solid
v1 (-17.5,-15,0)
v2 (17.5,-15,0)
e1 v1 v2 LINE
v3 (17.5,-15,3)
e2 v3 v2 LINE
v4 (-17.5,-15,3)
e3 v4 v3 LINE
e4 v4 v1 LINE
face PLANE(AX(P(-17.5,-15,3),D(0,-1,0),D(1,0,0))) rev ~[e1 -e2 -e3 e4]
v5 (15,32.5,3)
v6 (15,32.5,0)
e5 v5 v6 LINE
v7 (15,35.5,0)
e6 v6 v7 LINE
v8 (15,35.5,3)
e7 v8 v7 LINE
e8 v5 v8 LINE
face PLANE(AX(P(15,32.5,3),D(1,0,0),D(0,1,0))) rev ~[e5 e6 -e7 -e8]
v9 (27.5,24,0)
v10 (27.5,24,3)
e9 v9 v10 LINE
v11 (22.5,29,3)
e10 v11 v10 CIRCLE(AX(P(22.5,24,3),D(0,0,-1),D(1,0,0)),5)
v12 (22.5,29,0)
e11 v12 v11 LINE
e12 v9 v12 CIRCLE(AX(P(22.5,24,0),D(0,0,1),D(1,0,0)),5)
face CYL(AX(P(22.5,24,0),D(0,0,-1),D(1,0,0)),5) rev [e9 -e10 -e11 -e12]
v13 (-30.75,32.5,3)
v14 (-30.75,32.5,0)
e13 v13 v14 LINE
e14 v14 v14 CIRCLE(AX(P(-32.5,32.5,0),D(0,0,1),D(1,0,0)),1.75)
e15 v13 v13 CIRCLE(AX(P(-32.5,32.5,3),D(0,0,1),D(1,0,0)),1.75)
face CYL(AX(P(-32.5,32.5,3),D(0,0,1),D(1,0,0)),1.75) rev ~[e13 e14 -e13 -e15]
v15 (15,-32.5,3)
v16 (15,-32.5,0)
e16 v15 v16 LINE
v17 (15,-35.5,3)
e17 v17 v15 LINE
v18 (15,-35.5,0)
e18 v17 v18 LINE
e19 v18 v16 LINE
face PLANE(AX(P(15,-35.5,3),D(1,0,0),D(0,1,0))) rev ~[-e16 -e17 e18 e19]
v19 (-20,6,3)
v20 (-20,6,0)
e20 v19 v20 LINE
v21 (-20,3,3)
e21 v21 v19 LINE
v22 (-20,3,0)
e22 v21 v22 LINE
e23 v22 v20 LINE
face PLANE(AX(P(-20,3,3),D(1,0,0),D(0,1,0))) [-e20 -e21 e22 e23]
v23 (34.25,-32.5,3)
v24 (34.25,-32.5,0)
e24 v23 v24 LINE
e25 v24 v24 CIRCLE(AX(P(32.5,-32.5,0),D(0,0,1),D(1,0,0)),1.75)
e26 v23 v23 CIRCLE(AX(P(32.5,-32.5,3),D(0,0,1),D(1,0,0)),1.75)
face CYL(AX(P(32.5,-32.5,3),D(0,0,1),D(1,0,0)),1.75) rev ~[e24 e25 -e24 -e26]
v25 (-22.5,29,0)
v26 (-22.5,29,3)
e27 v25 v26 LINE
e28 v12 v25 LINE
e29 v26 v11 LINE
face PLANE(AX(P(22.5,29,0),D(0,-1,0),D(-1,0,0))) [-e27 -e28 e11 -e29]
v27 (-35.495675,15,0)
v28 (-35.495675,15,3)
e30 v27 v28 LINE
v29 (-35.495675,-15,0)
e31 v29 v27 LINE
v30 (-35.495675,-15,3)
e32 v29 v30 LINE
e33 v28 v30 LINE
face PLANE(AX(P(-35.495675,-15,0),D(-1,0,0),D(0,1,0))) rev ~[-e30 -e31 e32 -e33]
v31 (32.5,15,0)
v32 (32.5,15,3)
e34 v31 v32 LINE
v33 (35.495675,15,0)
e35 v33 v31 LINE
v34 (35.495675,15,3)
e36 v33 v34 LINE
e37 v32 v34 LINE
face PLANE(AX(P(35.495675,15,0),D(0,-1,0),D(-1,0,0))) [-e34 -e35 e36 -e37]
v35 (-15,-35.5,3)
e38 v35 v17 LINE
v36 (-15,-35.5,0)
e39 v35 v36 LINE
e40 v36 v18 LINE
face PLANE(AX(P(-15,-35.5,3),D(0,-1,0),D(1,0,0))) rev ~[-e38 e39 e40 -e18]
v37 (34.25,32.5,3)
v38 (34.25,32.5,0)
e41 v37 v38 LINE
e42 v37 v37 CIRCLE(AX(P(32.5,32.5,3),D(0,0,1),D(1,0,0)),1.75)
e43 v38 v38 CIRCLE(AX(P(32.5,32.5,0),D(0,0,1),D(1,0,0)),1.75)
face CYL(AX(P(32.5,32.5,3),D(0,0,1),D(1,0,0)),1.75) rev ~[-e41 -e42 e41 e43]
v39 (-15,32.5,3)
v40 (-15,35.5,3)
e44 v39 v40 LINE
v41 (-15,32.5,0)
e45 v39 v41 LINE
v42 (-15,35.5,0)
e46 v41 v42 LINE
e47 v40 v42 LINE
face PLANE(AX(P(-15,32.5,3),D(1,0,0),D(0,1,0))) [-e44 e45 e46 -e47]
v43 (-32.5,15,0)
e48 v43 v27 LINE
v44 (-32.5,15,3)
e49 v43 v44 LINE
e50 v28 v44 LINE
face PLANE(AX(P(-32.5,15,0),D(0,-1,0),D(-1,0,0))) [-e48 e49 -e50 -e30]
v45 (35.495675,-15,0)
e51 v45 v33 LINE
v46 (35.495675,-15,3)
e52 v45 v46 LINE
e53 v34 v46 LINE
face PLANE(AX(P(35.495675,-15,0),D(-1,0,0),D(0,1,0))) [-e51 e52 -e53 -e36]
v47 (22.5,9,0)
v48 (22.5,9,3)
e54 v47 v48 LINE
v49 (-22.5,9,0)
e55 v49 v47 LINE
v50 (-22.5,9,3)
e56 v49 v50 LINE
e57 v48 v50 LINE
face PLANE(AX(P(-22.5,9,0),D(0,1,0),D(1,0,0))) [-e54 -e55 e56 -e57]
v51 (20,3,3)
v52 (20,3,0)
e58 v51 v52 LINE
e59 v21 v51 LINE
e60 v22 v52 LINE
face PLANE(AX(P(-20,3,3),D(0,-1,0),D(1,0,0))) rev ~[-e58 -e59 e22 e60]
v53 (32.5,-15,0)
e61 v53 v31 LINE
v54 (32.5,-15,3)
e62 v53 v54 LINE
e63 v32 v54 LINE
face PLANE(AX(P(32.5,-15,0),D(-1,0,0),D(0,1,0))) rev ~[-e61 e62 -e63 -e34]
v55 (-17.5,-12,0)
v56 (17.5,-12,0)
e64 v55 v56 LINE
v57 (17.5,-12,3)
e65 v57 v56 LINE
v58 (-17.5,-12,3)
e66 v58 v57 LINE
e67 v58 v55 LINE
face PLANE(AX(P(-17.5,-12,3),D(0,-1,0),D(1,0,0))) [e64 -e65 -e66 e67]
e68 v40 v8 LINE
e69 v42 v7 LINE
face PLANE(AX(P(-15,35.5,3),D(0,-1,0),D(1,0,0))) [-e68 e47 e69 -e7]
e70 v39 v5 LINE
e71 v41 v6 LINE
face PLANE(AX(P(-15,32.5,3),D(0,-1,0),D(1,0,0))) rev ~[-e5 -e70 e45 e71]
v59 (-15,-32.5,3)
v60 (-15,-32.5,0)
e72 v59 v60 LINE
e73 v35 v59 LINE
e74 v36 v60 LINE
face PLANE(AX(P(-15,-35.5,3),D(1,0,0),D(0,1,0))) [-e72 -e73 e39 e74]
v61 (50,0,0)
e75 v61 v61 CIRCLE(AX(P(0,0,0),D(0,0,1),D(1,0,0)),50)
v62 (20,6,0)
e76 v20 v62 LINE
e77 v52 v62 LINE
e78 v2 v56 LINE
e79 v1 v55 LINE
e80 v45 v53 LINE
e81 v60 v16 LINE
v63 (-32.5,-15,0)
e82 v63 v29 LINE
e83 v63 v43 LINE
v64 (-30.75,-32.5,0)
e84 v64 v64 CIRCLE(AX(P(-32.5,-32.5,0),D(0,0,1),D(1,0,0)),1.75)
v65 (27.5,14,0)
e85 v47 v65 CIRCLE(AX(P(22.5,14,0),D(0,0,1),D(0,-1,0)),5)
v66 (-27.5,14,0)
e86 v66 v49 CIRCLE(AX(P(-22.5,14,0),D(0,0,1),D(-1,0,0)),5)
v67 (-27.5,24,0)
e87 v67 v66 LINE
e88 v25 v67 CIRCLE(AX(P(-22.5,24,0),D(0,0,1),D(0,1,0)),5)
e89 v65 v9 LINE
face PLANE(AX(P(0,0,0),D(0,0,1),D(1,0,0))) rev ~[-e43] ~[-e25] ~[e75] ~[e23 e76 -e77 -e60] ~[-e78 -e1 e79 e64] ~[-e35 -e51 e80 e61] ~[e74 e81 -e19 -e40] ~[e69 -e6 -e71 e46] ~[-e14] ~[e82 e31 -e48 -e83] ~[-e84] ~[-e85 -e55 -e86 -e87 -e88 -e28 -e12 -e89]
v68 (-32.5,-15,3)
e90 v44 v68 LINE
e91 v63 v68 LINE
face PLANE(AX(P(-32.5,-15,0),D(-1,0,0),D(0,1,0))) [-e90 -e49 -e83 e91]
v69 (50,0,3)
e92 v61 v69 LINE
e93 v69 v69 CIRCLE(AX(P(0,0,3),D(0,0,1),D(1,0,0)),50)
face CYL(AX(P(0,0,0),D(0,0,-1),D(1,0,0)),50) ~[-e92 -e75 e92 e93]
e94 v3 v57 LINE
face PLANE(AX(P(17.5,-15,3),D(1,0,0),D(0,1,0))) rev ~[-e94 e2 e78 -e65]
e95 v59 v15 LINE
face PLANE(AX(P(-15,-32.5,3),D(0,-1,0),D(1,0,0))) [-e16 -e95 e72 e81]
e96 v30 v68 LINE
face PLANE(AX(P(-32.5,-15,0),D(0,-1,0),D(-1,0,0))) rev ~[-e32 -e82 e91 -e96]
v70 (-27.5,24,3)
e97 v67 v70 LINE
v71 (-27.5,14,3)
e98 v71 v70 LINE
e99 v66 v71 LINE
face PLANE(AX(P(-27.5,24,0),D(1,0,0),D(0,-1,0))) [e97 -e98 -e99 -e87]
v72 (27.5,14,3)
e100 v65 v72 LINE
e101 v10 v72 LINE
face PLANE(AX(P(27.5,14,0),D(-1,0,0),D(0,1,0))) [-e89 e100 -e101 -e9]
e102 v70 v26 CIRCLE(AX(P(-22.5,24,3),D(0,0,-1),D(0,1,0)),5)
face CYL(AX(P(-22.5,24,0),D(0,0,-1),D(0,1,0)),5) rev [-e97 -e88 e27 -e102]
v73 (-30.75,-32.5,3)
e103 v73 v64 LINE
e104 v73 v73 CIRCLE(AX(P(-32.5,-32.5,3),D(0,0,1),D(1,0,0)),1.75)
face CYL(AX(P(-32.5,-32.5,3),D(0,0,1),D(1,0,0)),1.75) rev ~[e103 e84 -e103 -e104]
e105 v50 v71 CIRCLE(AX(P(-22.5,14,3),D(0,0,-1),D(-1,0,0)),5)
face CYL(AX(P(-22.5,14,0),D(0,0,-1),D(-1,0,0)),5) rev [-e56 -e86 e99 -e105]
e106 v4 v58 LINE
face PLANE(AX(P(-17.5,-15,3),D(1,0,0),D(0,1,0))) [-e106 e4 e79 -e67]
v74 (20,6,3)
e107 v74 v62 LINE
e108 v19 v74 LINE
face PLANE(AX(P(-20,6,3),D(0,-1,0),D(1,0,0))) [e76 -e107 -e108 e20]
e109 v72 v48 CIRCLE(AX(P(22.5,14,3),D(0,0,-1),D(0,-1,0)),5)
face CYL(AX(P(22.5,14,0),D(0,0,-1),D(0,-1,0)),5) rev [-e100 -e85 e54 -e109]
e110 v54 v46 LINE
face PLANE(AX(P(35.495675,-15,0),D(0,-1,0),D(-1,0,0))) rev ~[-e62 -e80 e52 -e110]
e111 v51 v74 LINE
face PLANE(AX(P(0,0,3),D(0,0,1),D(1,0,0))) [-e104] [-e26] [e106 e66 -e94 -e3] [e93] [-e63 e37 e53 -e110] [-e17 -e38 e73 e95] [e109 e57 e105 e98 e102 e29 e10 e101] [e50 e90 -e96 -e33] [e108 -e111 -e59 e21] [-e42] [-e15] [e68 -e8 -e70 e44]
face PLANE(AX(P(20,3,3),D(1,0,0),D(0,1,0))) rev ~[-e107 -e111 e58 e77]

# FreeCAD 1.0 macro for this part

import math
import FreeCAD as App
import Part
import Sketcher

V = App.Vector

doc = App.newDocument("Part")
body = doc.addObject("PartDesign::Body", "Body")

sketch1 = body.newObject("Sketcher::SketchObject", "Sketch")
sketch1.AttachmentSupport = (doc.getObject("XY_Plane"), [""])
sketch1.MapMode = "FlatFace"
sketch1.addGeometry(Part.Circle(V(0, 0, 0), V(0, 0, 1), 50), False)
sketch1.addConstraint([
    Sketcher.Constraint("Coincident", 0, 3, -1, 1),
    Sketcher.Constraint("Diameter", 0, 100.0),
])
pad1 = body.newObject("PartDesign::Pad", "Pad")
pad1.Profile = sketch1
pad1.Length = 3

sketch2 = body.newObject("Sketcher::SketchObject", "Sketch001")
sketch2.AttachmentSupport = (doc.getObject("XY_Plane"), [""])
sketch2.MapMode = "FlatFace"
sketch2.AttachmentOffset = App.Placement(V(0, 0, 3), App.Rotation())
sketch2.addGeometry([
    Part.LineSegment(V(-15, -32.5, 0), V(-15, -35.5, 0)),
    Part.LineSegment(V(-15, -35.5, 0), V(15, -35.5, 0)),
    Part.LineSegment(V(15, -35.5, 0), V(15, -32.5, 0)),
    Part.LineSegment(V(15, -32.5, 0), V(-15, -32.5, 0)),
    Part.LineSegment(V(-17.5, -12, 0), V(-17.5, -15, 0)),
    Part.LineSegment(V(-17.5, -15, 0), V(17.5, -15, 0)),
    Part.LineSegment(V(17.5, -15, 0), V(17.5, -12, 0)),
    Part.LineSegment(V(17.5, -12, 0), V(-17.5, -12, 0)),
    Part.LineSegment(V(-20, 6, 0), V(-20, 3, 0)),
    Part.LineSegment(V(-20, 3, 0), V(20, 3, 0)),
    Part.LineSegment(V(20, 3, 0), V(20, 6, 0)),
    Part.LineSegment(V(20, 6, 0), V(-20, 6, 0)),
    Part.LineSegment(V(-15, 35.5, 0), V(-15, 32.5, 0)),
    Part.LineSegment(V(-15, 32.5, 0), V(15, 32.5, 0)),
    Part.LineSegment(V(15, 32.5, 0), V(15, 35.5, 0)),
    Part.LineSegment(V(15, 35.5, 0), V(-15, 35.5, 0)),
], False)
sketch2.addConstraint([
    Sketcher.Constraint("Coincident", 0, 2, 1, 1),
    Sketcher.Constraint("Coincident", 1, 2, 2, 1),
    Sketcher.Constraint("Coincident", 2, 2, 3, 1),
    Sketcher.Constraint("Coincident", 3, 2, 0, 1),
    Sketcher.Constraint("Coincident", 4, 2, 5, 1),
    Sketcher.Constraint("Coincident", 5, 2, 6, 1),
    Sketcher.Constraint("Coincident", 6, 2, 7, 1),
    Sketcher.Constraint("Coincident", 7, 2, 4, 1),
    Sketcher.Constraint("Coincident", 8, 2, 9, 1),
    Sketcher.Constraint("Coincident", 9, 2, 10, 1),
    Sketcher.Constraint("Coincident", 10, 2, 11, 1),
    Sketcher.Constraint("Coincident", 11, 2, 8, 1),
    Sketcher.Constraint("Coincident", 12, 2, 13, 1),
    Sketcher.Constraint("Coincident", 13, 2, 14, 1),
    Sketcher.Constraint("Coincident", 14, 2, 15, 1),
    Sketcher.Constraint("Coincident", 15, 2, 12, 1),
    Sketcher.Constraint("Vertical", 0),
    Sketcher.Constraint("Horizontal", 1),
    Sketcher.Constraint("Vertical", 2),
    Sketcher.Constraint("Horizontal", 3),
    Sketcher.Constraint("Vertical", 4),
    Sketcher.Constraint("Horizontal", 5),
    Sketcher.Constraint("Vertical", 6),
    Sketcher.Constraint("Horizontal", 7),
    Sketcher.Constraint("Vertical", 8),
    Sketcher.Constraint("Horizontal", 9),
    Sketcher.Constraint("Vertical", 10),
    Sketcher.Constraint("Horizontal", 11),
    Sketcher.Constraint("Vertical", 12),
    Sketcher.Constraint("Horizontal", 13),
    Sketcher.Constraint("Vertical", 14),
    Sketcher.Constraint("Horizontal", 15),
    Sketcher.Constraint("Symmetric", 2, 2, 12, 2, -1, 1),
    Sketcher.Constraint("Symmetric", 0, 2, 14, 2, -1, 1),
    Sketcher.Constraint("Vertical", 3, 2, 12, 2),
    Sketcher.Constraint("Equal", 2, 4),
    Sketcher.Constraint("Equal", 6, 8),
    Sketcher.Constraint("DistanceX", 1, 1, 1, 2, 30.0),
    Sketcher.Constraint("DistanceX", 5, 1, 5, 2, 35.0),
    Sketcher.Constraint("DistanceX", 9, 1, 9, 2, 40.0),
    Sketcher.Constraint("DistanceY", 0, 2, 0, 1, 3.0),
    Sketcher.Constraint("DistanceY", 4, 2, -1, 1, 15.0),
    Sketcher.Constraint("DistanceX", 8, 2, -1, 1, 20.0),
    Sketcher.Constraint("DistanceY", -1, 1, 8, 2, 3.0),
    Sketcher.Constraint("DistanceY", 0, 2, -1, 1, 35.5),
    Sketcher.Constraint("DistanceX", 4, 2, -1, 1, 17.5),
])
pocket1 = body.newObject("PartDesign::Pocket", "Pocket")
pocket1.Profile = sketch2
pocket1.Length = 8

sketch3 = body.newObject("Sketcher::SketchObject", "Sketch002")
sketch3.AttachmentSupport = (doc.getObject("XY_Plane"), [""])
sketch3.MapMode = "FlatFace"
sketch3.addGeometry([
    Part.LineSegment(V(-22, 29, 0), V(22, 29, 0)),
    Part.ArcOfCircle(Part.Circle(V(22, 24, 0), V(0, 0, 1), 5), math.radians(0), math.radians(90)),
    Part.LineSegment(V(28, 24, 0), V(28, 14, 0)),
    Part.ArcOfCircle(Part.Circle(V(22, 14, 0), V(0, 0, 1), 5), math.radians(-90), math.radians(0)),
    Part.LineSegment(V(22, 9, 0), V(-22, 9, 0)),
    Part.ArcOfCircle(Part.Circle(V(-22, 14, 0), V(0, 0, 1), 5), math.radians(180), math.radians(270)),
    Part.LineSegment(V(-28, 14, 0), V(-28, 24, 0)),
    Part.ArcOfCircle(Part.Circle(V(-22, 24, 0), V(0, 0, 1), 5), math.radians(90), math.radians(180)),
], False)
sketch3.addConstraint([
    Sketcher.Constraint("Tangent", 0, 2, 1, 2),
    Sketcher.Constraint("Tangent", 1, 1, 2, 1),
    Sketcher.Constraint("Tangent", 2, 2, 3, 2),
    Sketcher.Constraint("Tangent", 3, 1, 4, 1),
    Sketcher.Constraint("Tangent", 4, 2, 5, 2),
    Sketcher.Constraint("Tangent", 5, 1, 6, 1),
    Sketcher.Constraint("Tangent", 6, 2, 7, 2),
    Sketcher.Constraint("Tangent", 7, 1, 0, 1),
    Sketcher.Constraint("Horizontal", 0),
    Sketcher.Constraint("Vertical", 2),
    Sketcher.Constraint("Horizontal", 4),
    Sketcher.Constraint("Vertical", 6),
    Sketcher.Constraint("Equal", 1, 3),
    Sketcher.Constraint("Equal", 3, 5),
    Sketcher.Constraint("Equal", 5, 7),
    Sketcher.Constraint("Radius", 1, 5.0),
    Sketcher.Constraint("DistanceX", 0, 1, 0, 2, 45.0),
    Sketcher.Constraint("DistanceY", 2, 2, 2, 1, 10.0),
    Sketcher.Constraint("DistanceY", -1, 1, 1, 3, 24.0),
    Sketcher.Constraint("DistanceX", -1, 1, 1, 3, 22.5),
])
pocket2 = body.newObject("PartDesign::Pocket", "Pocket001")
pocket2.Profile = sketch3
pocket2.Length = 10
pocket2.Reversed = True

sketch4 = body.newObject("Sketcher::SketchObject", "Sketch003")
sketch4.AttachmentSupport = (doc.getObject("XY_Plane"), [""])
sketch4.MapMode = "FlatFace"
sketch4.addGeometry([
    Part.LineSegment(V(35.5, 15, 0), V(35.5, -15, 0)),
    Part.LineSegment(V(35.5, -15, 0), V(32.5, -15, 0)),
    Part.LineSegment(V(32.5, -15, 0), V(32.5, 15, 0)),
    Part.LineSegment(V(32.5, 15, 0), V(35.5, 15, 0)),
    Part.LineSegment(V(-32.5, 15, 0), V(-32.5, -15, 0)),
    Part.LineSegment(V(-32.5, -15, 0), V(-35.5, -15, 0)),
    Part.LineSegment(V(-35.5, -15, 0), V(-35.5, 15, 0)),
    Part.LineSegment(V(-35.5, 15, 0), V(-32.5, 15, 0)),
], False)
sketch4.addConstraint([
    Sketcher.Constraint("Coincident", 0, 2, 1, 1),
    Sketcher.Constraint("Coincident", 1, 2, 2, 1),
    Sketcher.Constraint("Coincident", 2, 2, 3, 1),
    Sketcher.Constraint("Coincident", 3, 2, 0, 1),
    Sketcher.Constraint("Coincident", 4, 2, 5, 1),
    Sketcher.Constraint("Coincident", 5, 2, 6, 1),
    Sketcher.Constraint("Coincident", 6, 2, 7, 1),
    Sketcher.Constraint("Coincident", 7, 2, 4, 1),
    Sketcher.Constraint("Vertical", 0),
    Sketcher.Constraint("Horizontal", 1),
    Sketcher.Constraint("Vertical", 2),
    Sketcher.Constraint("Horizontal", 3),
    Sketcher.Constraint("Vertical", 4),
    Sketcher.Constraint("Horizontal", 5),
    Sketcher.Constraint("Vertical", 6),
    Sketcher.Constraint("Horizontal", 7),
    Sketcher.Constraint("Symmetric", 2, 2, 4, 2, -1, 1),
    Sketcher.Constraint("Symmetric", 0, 2, 6, 2, -1, 1),
    Sketcher.Constraint("Horizontal", 1, 2, 4, 2),
    Sketcher.Constraint("DistanceY", 0, 2, 0, 1, 30.0),
    Sketcher.Constraint("DistanceX", 4, 2, 1, 2, 65.0),
    Sketcher.Constraint("DistanceX", 1, 2, 1, 1, 2.995675),
])
pocket3 = body.newObject("PartDesign::Pocket", "Pocket002")
pocket3.Profile = sketch4
pocket3.Length = 10
pocket3.Reversed = True

sketch5 = body.newObject("Sketcher::SketchObject", "Sketch004")
sketch5.AttachmentSupport = (doc.getObject("XY_Plane"), [""])
sketch5.MapMode = "FlatFace"
sketch5.AttachmentOffset = App.Placement(V(0, 0, 3), App.Rotation())
sketch5.addGeometry([
    Part.Circle(V(-32.5, 32.5, 0), V(0, 0, 1), 1.8),
    Part.Circle(V(32.5, 32.5, 0), V(0, 0, 1), 1.8),
    Part.Circle(V(32.5, -32.5, 0), V(0, 0, 1), 1.8),
    Part.Circle(V(-32.5, -32.5, 0), V(0, 0, 1), 1.8),
], False)
sketch5.addConstraint([
    Sketcher.Constraint("Equal", 0, 1),
    Sketcher.Constraint("Equal", 1, 2),
    Sketcher.Constraint("Equal", 2, 3),
    Sketcher.Constraint("Symmetric", 0, 3, 2, 3, -1, 1),
    Sketcher.Constraint("Symmetric", 1, 3, 3, 3, -1, 1),
    Sketcher.Constraint("Symmetric", 0, 3, 1, 3, -2),
    Sketcher.Constraint("Diameter", 0, 3.5),
    Sketcher.Constraint("DistanceX", 0, 3, 1, 3, 65.0),
    Sketcher.Constraint("DistanceY", 2, 3, 1, 3, 65.0),
])
pocket4 = body.newObject("PartDesign::Pocket", "Pocket003")
pocket4.Profile = sketch5
pocket4.Length = 10

doc.recompute()
